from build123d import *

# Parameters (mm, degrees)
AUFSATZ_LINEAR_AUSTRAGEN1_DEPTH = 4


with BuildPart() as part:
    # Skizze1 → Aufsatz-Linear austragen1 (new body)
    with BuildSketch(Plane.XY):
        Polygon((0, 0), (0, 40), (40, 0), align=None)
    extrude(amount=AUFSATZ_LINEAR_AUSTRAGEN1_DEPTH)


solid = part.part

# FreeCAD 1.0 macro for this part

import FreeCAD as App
import Part
import Sketcher


def add_polygon(sketch, points):
    """Adds a closed chain of lines whose ends are joined by coincident constraints."""
    first, n = sketch.GeometryCount, len(points)
    for a, b in zip(points, points[1:] + points[:1]):
        sketch.addGeometry(Part.LineSegment(App.Vector(*a, 0), App.Vector(*b, 0)), False)
    for i in range(n):
        sketch.addConstraint(Sketcher.Constraint("Coincident", first + i, 2, first + (i + 1) % n, 1))

doc = App.newDocument("Part")
body = doc.addObject("PartDesign::Body", "Body")

sketch1 = doc.addObject("Sketcher::SketchObject", "Sketch")
body.addObject(sketch1)
sketch1.AttachmentSupport = (doc.XY_Plane, [""])
sketch1.MapMode = "FlatFace"
add_polygon(sketch1, [(0, 40), (0, 0), (40, 0)])
sketch1.addConstraint([
    Sketcher.Constraint("Vertical", 0),
    Sketcher.Constraint("Horizontal", 1),
    Sketcher.Constraint("Coincident", 0, 2, -1, 1),
    Sketcher.Constraint("Equal", 1, 0),
    Sketcher.Constraint("DistanceX", 1, 1, 1, 2, 40.0),
])
pad1 = doc.addObject("PartDesign::Pad", "Pad")
body.addObject(pad1)
pad1.Profile = sketch1
pad1.Length = 4

doc.recompute()
